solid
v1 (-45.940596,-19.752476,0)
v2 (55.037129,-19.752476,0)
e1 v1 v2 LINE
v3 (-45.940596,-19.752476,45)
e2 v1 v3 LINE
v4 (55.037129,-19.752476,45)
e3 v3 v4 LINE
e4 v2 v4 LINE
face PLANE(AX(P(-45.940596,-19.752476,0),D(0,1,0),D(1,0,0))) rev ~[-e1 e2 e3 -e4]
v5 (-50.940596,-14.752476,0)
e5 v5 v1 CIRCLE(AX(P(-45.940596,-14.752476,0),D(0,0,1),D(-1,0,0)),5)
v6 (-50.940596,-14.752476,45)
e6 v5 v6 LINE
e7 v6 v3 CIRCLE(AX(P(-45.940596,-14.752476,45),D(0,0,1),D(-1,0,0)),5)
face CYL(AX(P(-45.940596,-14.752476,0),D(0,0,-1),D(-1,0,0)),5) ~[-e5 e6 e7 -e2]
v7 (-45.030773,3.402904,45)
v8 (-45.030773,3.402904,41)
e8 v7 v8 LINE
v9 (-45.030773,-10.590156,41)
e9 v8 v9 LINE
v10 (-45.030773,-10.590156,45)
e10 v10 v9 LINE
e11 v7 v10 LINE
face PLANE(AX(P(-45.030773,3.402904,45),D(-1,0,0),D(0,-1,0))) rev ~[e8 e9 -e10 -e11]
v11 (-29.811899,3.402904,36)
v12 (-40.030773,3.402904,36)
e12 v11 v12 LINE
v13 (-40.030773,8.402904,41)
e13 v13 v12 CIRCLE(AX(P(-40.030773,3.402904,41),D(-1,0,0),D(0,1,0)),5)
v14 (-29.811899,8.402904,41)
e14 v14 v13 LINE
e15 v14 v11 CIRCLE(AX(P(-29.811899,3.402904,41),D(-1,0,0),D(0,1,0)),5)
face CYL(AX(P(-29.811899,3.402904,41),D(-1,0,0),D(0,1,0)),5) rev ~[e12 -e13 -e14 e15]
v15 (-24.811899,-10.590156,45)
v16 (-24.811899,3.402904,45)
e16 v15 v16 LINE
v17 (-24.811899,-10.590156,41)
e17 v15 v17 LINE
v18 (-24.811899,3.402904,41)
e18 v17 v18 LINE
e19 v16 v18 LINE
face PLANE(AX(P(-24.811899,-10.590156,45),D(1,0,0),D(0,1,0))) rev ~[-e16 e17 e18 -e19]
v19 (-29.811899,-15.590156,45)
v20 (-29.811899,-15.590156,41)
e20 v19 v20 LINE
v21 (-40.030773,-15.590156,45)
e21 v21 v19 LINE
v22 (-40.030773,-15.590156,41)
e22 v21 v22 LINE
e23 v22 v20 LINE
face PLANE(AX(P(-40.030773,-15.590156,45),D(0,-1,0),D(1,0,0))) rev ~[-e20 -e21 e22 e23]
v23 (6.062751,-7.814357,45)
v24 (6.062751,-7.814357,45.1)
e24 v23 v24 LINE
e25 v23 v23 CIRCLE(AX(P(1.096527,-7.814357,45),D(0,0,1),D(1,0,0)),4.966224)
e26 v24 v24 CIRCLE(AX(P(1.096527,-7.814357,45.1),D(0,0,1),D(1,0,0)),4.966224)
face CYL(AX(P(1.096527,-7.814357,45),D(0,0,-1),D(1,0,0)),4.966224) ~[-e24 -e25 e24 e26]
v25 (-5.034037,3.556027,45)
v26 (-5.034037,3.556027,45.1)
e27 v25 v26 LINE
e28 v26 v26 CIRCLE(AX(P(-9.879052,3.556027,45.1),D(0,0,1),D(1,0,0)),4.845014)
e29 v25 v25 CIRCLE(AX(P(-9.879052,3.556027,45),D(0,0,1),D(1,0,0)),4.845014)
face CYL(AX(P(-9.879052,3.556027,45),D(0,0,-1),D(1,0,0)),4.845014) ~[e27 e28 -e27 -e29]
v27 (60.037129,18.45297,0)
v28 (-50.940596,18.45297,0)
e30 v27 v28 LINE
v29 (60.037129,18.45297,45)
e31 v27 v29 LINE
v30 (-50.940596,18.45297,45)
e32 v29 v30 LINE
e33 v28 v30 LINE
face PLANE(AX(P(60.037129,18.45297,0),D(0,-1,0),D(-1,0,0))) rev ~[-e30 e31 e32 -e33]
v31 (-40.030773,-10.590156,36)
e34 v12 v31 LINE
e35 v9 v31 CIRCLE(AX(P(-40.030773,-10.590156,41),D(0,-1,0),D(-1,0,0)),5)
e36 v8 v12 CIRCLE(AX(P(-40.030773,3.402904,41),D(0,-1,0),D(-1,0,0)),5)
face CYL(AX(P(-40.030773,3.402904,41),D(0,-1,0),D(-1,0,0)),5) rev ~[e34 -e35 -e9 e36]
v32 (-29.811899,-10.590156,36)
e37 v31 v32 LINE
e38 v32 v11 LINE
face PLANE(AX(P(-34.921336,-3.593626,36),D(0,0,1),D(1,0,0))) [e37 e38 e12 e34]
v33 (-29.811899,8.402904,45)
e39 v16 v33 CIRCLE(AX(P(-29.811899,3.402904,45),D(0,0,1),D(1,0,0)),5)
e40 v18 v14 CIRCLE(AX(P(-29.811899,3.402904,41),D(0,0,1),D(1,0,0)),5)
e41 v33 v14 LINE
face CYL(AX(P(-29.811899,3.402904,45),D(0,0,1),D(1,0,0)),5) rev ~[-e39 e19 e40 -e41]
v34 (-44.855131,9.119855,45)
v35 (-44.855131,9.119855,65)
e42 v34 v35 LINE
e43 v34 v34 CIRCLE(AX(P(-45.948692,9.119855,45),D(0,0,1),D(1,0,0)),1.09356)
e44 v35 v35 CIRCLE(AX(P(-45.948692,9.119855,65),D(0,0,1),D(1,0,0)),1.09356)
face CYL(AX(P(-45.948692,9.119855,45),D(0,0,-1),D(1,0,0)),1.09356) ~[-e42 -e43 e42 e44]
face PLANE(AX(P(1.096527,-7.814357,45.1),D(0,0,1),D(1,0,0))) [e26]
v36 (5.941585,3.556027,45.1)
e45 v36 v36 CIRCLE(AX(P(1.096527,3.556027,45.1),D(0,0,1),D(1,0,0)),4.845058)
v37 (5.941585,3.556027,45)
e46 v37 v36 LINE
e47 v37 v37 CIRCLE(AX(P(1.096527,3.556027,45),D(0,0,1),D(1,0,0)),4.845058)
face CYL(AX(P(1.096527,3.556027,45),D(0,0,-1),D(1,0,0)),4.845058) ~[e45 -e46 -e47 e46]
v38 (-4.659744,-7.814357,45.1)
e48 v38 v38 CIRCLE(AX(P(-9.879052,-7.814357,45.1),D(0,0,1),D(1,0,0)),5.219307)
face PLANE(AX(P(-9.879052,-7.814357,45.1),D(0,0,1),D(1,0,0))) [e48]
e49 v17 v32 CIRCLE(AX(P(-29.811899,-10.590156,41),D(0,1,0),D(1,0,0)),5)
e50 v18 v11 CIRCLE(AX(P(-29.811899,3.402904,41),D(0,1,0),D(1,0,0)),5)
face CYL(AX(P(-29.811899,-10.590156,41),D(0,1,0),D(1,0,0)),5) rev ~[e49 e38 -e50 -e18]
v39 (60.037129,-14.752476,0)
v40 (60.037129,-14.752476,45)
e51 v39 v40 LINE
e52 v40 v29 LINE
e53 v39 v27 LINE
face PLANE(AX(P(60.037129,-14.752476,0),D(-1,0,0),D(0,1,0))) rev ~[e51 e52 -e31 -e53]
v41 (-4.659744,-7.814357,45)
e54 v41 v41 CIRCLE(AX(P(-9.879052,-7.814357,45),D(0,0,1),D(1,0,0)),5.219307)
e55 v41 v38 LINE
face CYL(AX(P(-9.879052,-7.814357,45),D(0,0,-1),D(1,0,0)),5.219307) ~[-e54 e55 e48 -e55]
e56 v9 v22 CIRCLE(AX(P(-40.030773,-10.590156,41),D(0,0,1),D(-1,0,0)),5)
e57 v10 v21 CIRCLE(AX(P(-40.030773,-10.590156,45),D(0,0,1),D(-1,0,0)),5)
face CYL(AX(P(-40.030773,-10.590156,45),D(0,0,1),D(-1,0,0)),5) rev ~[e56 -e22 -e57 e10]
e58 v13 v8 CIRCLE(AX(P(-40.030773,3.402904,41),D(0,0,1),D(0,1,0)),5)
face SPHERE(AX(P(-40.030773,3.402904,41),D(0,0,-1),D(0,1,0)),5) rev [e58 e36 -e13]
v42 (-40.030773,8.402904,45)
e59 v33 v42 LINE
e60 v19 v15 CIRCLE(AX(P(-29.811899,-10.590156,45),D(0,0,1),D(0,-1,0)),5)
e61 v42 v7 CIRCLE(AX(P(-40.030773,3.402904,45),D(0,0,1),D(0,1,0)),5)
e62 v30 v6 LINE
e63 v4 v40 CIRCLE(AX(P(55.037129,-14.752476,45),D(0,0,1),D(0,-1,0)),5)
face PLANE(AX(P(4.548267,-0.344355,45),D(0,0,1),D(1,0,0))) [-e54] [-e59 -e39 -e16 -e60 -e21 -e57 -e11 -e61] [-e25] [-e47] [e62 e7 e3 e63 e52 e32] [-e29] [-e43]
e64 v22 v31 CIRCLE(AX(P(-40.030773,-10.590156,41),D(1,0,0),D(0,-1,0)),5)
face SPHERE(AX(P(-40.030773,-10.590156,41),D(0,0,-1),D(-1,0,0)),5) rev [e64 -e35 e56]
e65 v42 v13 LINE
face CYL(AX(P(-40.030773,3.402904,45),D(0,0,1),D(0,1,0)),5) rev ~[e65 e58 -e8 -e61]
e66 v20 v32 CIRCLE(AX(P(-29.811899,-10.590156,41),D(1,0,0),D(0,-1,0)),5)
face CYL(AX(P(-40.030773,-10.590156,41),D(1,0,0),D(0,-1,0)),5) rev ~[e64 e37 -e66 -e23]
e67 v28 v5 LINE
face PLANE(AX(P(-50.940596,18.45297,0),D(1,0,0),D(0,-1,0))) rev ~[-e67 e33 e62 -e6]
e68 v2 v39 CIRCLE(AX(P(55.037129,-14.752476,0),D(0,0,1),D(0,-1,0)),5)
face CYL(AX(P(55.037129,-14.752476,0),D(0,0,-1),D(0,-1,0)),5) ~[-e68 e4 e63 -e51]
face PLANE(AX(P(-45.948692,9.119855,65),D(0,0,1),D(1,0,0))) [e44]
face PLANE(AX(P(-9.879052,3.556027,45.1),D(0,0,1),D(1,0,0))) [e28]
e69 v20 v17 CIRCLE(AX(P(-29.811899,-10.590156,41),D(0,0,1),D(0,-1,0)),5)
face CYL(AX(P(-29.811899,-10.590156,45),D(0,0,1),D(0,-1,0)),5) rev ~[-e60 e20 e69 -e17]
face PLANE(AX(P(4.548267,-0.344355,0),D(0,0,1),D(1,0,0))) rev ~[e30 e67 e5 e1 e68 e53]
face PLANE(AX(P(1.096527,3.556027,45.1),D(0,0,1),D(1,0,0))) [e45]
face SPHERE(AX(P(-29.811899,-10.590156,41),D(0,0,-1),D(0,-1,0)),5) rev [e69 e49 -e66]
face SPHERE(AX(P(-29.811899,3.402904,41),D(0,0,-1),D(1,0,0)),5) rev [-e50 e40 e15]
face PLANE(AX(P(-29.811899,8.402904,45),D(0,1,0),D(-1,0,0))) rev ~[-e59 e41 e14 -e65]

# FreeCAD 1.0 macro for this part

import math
import FreeCAD as App
import Part
import Sketcher
from FreeCAD import Vector
Q = App.Units.Quantity


def edges_at(feature, points):
    """Names of the edges that pass closest to the given points."""
    edges = feature.Shape.Edges
    near = lambda p: min(range(len(edges)), key=lambda i: edges[i].distToShape(Part.Vertex(*p))[0])
    return sorted({f"Edge{near(p) + 1}" for p in points})

doc = App.newDocument("Part")
body = doc.addObject("PartDesign::Body", "Body")

# Sketch on XY plane
sketch1 = body.newObject("Sketcher::SketchObject", "Sketch")
sketch1.AttachmentSupport = (doc.getObject("XY_Plane"), [""])
sketch1.MapMode = "FlatFace"
sketch1.addGeometry(Part.LineSegment(Vector(60, 18, 0), Vector(-51, 18, 0)), False)
sketch1.addGeometry(Part.LineSegment(Vector(-51, 18, 0), Vector(-51, -15, 0)), False)
sketch1.addGeometry(Part.ArcOfCircle(Part.Circle(Vector(-46, -15, 0), Vector(0, 0, 1), 5), math.radians(180), math.radians(270)), False)
sketch1.addGeometry(Part.LineSegment(Vector(-46, -20, 0), Vector(55, -20, 0)), False)
sketch1.addGeometry(Part.ArcOfCircle(Part.Circle(Vector(55, -15, 0), Vector(0, 0, 1), 5), math.radians(-90), math.radians(0)), False)
sketch1.addGeometry(Part.LineSegment(Vector(60, -15, 0), Vector(60, 18, 0)), False)
sketch1.addConstraint(Sketcher.Constraint("Coincident", 0, 2, 1, 1))
sketch1.addConstraint(Sketcher.Constraint("Tangent", 1, 2, 2, 1))
sketch1.addConstraint(Sketcher.Constraint("Tangent", 2, 2, 3, 1))
sketch1.addConstraint(Sketcher.Constraint("Tangent", 3, 2, 4, 1))
sketch1.addConstraint(Sketcher.Constraint("Tangent", 4, 2, 5, 1))
sketch1.addConstraint(Sketcher.Constraint("Coincident", 5, 2, 0, 1))
sketch1.addConstraint(Sketcher.Constraint("Horizontal", 0))
sketch1.addConstraint(Sketcher.Constraint("Vertical", 1))
sketch1.addConstraint(Sketcher.Constraint("Horizontal", 3))
sketch1.addConstraint(Sketcher.Constraint("Vertical", 5))
sketch1.addConstraint(Sketcher.Constraint("Equal", 2, 4))
sketch1.addConstraint(Sketcher.Constraint("Radius", 2, Q("5 mm")))
sketch1.addConstraint(Sketcher.Constraint("DistanceX", 0, 2, 0, 1, Q("110.977724 mm")))
sketch1.addConstraint(Sketcher.Constraint("DistanceY", 1, 2, 1, 1, Q("33.205447 mm")))
sketch1.addConstraint(Sketcher.Constraint("DistanceX", -1, 1, 4, 3, Q("55.037129 mm")))
sketch1.addConstraint(Sketcher.Constraint("DistanceY", -1, 1, 0, 2, Q("18.45297 mm")))
pad1 = body.newObject("PartDesign::Pad", "Pad")
pad1.Profile = sketch1
pad1.Length = 45

# Sketch on XY plane
sketch2 = body.newObject("Sketcher::SketchObject", "Sketch001")
sketch2.AttachmentSupport = (doc.getObject("XY_Plane"), [""])
sketch2.MapMode = "FlatFace"
sketch2.AttachmentOffset = App.Placement(Vector(0, 0, 45), App.Rotation())
sketch2.addGeometry(Part.Circle(Vector(1.1, 3.6, 0), Vector(0, 0, 1), 4.8), False)
sketch2.addGeometry(Part.Circle(Vector(-9.9, 3.6, 0), Vector(0, 0, 1), 4.8), False)
sketch2.addGeometry(Part.Circle(Vector(-9.9, -7.8, 0), Vector(0, 0, 1), 5.2), False)
sketch2.addGeometry(Part.Circle(Vector(1.1, -7.8, 0), Vector(0, 0, 1), 5), False)
sketch2.addConstraint(Sketcher.Constraint("Horizontal", 0, 3, 1, 3))
sketch2.addConstraint(Sketcher.Constraint("Horizontal", 2, 3, 3, 3))
sketch2.addConstraint(Sketcher.Constraint("Vertical", 1, 3, 2, 3))
sketch2.addConstraint(Sketcher.Constraint("Vertical", 0, 3, 3, 3))
sketch2.addConstraint(Sketcher.Constraint("Diameter", 1, Q("9.690029 mm")))
sketch2.addConstraint(Sketcher.Constraint("Diameter", 3, Q("9.932448 mm")))
sketch2.addConstraint(Sketcher.Constraint("Diameter", 0, Q("9.690116 mm")))
sketch2.addConstraint(Sketcher.Constraint("Diameter", 2, Q("10.438614 mm")))
sketch2.addConstraint(Sketcher.Constraint("DistanceX", 1, 3, -1, 1, Q("9.879052 mm")))
sketch2.addConstraint(Sketcher.Constraint("DistanceX", 1, 3, 0, 3, Q("10.975579 mm")))
sketch2.addConstraint(Sketcher.Constraint("DistanceY", -1, 1, 0, 3, Q("3.556027 mm")))
sketch2.addConstraint(Sketcher.Constraint("DistanceY", 2, 3, -1, 1, Q("7.814357 mm")))
pad2 = body.newObject("PartDesign::Pad", "Pad001")
pad2.Profile = sketch2
pad2.Length = 0.1

# Sketch on XY plane
sketch3 = body.newObject("Sketcher::SketchObject", "Sketch002")
sketch3.AttachmentSupport = (doc.getObject("XY_Plane"), [""])
sketch3.MapMode = "FlatFace"
sketch3.AttachmentOffset = App.Placement(Vector(0, 0, 45), App.Rotation())
sketch3.addGeometry(Part.LineSegment(Vector(-30, 8, 0), Vector(-40, 8, 0)), False)
sketch3.addGeometry(Part.ArcOfCircle(Part.Circle(Vector(-40, 3, 0), Vector(0, 0, 1), 5), math.radians(90), math.radians(180)), False)
sketch3.addGeometry(Part.LineSegment(Vector(-45, 3, 0), Vector(-45, -11, 0)), False)
sketch3.addGeometry(Part.ArcOfCircle(Part.Circle(Vector(-40, -11, 0), Vector(0, 0, 1), 5), math.radians(-180), math.radians(-90)), False)
sketch3.addGeometry(Part.LineSegment(Vector(-40, -16, 0), Vector(-30, -16, 0)), False)
sketch3.addGeometry(Part.ArcOfCircle(Part.Circle(Vector(-30, -11, 0), Vector(0, 0, 1), 5), math.radians(-90), math.radians(0)), False)
sketch3.addGeometry(Part.LineSegment(Vector(-25, -11, 0), Vector(-25, 3, 0)), False)
sketch3.addGeometry(Part.ArcOfCircle(Part.Circle(Vector(-30, 3, 0), Vector(0, 0, 1), 5), math.radians(0), math.radians(90)), False)
sketch3.addConstraint(Sketcher.Constraint("Tangent", 0, 2, 1, 1))
sketch3.addConstraint(Sketcher.Constraint("Tangent", 1, 2, 2, 1))
sketch3.addConstraint(Sketcher.Constraint("Tangent", 2, 2, 3, 1))
sketch3.addConstraint(Sketcher.Constraint("Tangent", 3, 2, 4, 1))
sketch3.addConstraint(Sketcher.Constraint("Tangent", 4, 2, 5, 1))
sketch3.addConstraint(Sketcher.Constraint("Tangent", 5, 2, 6, 1))
sketch3.addConstraint(Sketcher.Constraint("Tangent", 6, 2, 7, 1))
sketch3.addConstraint(Sketcher.Constraint("Tangent", 7, 2, 0, 1))
sketch3.addConstraint(Sketcher.Constraint("Horizontal", 0))
sketch3.addConstraint(Sketcher.Constraint("Vertical", 2))
sketch3.addConstraint(Sketcher.Constraint("Horizontal", 4))
sketch3.addConstraint(Sketcher.Constraint("Vertical", 6))
sketch3.addConstraint(Sketcher.Constraint("Equal", 1, 3))
sketch3.addConstraint(Sketcher.Constraint("Equal", 3, 5))
sketch3.addConstraint(Sketcher.Constraint("Equal", 5, 7))
sketch3.addConstraint(Sketcher.Constraint("Radius", 1, Q("5 mm")))
sketch3.addConstraint(Sketcher.Constraint("DistanceY", 2, 2, 2, 1, Q("13.993061 mm")))
sketch3.addConstraint(Sketcher.Constraint("DistanceX", 5, 3, -1, 1, Q("29.811899 mm")))
sketch3.addConstraint(Sketcher.Constraint("DistanceX", 0, 2, 0, 1, Q("10.218873 mm")))
sketch3.addConstraint(Sketcher.Constraint("DistanceY", -1, 1, 1, 3, Q("3.402904 mm")))
pocket1 = body.newObject("PartDesign::Pocket", "Pocket")
pocket1.Profile = sketch3
pocket1.Length = 9
doc.recompute()

fillet = body.newObject("PartDesign::Fillet", "Fillet")
fillet.Base = (pocket1, edges_at(pocket1, [(-43.566, 6.938, 36), (-34.921, 8.403, 36)]))
fillet.Radius = 5

# Sketch on XY plane
sketch4 = body.newObject("Sketcher::SketchObject", "Sketch003")
sketch4.AttachmentSupport = (doc.getObject("XY_Plane"), [""])
sketch4.MapMode = "FlatFace"
sketch4.AttachmentOffset = App.Placement(Vector(0, 0, 45), App.Rotation())
sketch4.addGeometry(Part.Circle(Vector(-45.9, 9.1, 0), Vector(0, 0, 1), 1.1), False)
sketch4.addConstraint(Sketcher.Constraint("Diameter", 0, Q("2.187121 mm")))
sketch4.addConstraint(Sketcher.Constraint("DistanceX", 0, 3, -1, 1, Q("45.948692 mm")))
sketch4.addConstraint(Sketcher.Constraint("DistanceY", -1, 1, 0, 3, Q("9.119855 mm")))
pad3 = body.newObject("PartDesign::Pad", "Pad002")
pad3.Profile = sketch4
pad3.Length = 20

doc.recompute()
